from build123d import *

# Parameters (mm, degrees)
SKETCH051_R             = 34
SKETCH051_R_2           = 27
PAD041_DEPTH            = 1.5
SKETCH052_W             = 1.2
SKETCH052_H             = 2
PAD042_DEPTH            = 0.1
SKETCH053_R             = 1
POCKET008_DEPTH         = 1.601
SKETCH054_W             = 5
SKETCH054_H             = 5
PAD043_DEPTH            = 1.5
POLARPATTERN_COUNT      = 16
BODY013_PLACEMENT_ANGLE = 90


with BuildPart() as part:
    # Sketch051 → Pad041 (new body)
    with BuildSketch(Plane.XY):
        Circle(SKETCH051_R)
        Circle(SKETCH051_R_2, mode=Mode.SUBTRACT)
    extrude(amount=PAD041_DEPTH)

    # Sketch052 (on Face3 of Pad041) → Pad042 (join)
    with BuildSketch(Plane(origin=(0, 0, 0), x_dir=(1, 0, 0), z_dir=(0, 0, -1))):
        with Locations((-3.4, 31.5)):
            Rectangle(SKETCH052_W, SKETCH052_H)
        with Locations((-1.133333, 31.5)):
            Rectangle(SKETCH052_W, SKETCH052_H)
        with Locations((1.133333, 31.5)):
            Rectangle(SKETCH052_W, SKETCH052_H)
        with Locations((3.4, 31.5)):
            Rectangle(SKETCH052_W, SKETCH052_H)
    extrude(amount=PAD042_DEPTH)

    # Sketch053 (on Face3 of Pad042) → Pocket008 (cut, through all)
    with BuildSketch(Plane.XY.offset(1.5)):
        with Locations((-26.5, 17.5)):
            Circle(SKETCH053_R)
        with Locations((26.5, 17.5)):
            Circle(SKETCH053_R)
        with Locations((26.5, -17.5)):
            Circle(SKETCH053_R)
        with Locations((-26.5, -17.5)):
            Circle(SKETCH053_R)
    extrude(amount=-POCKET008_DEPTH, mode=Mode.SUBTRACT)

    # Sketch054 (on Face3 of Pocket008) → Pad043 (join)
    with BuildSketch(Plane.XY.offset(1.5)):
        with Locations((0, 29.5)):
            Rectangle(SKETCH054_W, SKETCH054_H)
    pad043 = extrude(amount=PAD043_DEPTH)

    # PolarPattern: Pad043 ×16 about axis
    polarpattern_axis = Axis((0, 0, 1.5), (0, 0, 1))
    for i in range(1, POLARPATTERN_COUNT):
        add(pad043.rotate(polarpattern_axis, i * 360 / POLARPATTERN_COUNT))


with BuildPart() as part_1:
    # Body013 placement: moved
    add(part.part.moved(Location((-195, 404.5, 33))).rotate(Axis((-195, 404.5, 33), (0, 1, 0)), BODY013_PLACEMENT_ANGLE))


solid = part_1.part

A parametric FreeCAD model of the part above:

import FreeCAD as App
import Part
import Sketcher

V = App.Vector


def add_polygon(sketch, points):
    """Adds a closed chain of lines whose ends are joined by coincident constraints."""
    first, n = sketch.GeometryCount, len(points)
    for a, b in zip(points, points[1:] + points[:1]):
        sketch.addGeometry(Part.LineSegment(App.Vector(*a, 0), App.Vector(*b, 0)), False)
    for i in range(n):
        sketch.addConstraint(Sketcher.Constraint("Coincident", first + i, 2, first + (i + 1) % n, 1))

doc = App.newDocument("Part")
body = doc.addObject("PartDesign::Body", "Body")

sketch1 = body.newObject("Sketcher::SketchObject", "Sketch")
sketch1.AttachmentSupport = (doc.getObject("XY_Plane"), [""])
sketch1.MapMode = "FlatFace"
sketch1.addGeometry([
    Part.Circle(V(0, 0, 0), V(0, 0, 1), 34),
    Part.Circle(V(0, 0, 0), V(0, 0, 1), 27),
], False)
sketch1.addConstraint([
    Sketcher.Constraint("Coincident", 0, 3, -1, 1),
    Sketcher.Constraint("Coincident", 1, 3, -1, 1),
    Sketcher.Constraint("Diameter", 0, 68.0),
    Sketcher.Constraint("Diameter", 1, 54.0),
])
pad1 = body.newObject("PartDesign::Pad", "Pad")
pad1.Profile = sketch1
pad1.Length = 1.5

sketch2 = body.newObject("Sketcher::SketchObject", "Sketch001")
sketch2.AttachmentSupport = (doc.getObject("XY_Plane"), [""])
sketch2.MapMode = "FlatFace"
add_polygon(sketch2, [(-4, -32.5), (-4, -30.5), (-2.8, -30.5), (-2.8, -32.5)])
add_polygon(sketch2, [(-1.7, -32.5), (-1.7, -30.5), (-0.5, -30.5), (-0.5, -32.5)])
add_polygon(sketch2, [(0.5, -32.5), (0.5, -30.5), (1.7, -30.5), (1.7, -32.5)])
add_polygon(sketch2, [(2.8, -32.5), (2.8, -30.5), (4, -30.5), (4, -32.5)])
sketch2.addConstraint([
    Sketcher.Constraint("Vertical", 0),
    Sketcher.Constraint("Horizontal", 1),
    Sketcher.Constraint("Vertical", 2),
    Sketcher.Constraint("Horizontal", 3),
    Sketcher.Constraint("Vertical", 4),
    Sketcher.Constraint("Horizontal", 5),
    Sketcher.Constraint("Vertical", 6),
    Sketcher.Constraint("Horizontal", 7),
    Sketcher.Constraint("Vertical", 8),
    Sketcher.Constraint("Horizontal", 9),
    Sketcher.Constraint("Vertical", 10),
    Sketcher.Constraint("Horizontal", 11),
    Sketcher.Constraint("Vertical", 12),
    Sketcher.Constraint("Horizontal", 13),
    Sketcher.Constraint("Vertical", 14),
    Sketcher.Constraint("Horizontal", 15),
    Sketcher.Constraint("Symmetric", 5, 2, 8, 2, -2),
    Sketcher.Constraint("Symmetric", 7, 2, 10, 2, -2),
    Sketcher.Constraint("Symmetric", 1, 2, 12, 2, -2),
    Sketcher.Constraint("Symmetric", 3, 2, 14, 2, -2),
    Sketcher.Constraint("Horizontal", 1, 2, 4, 2),
    Sketcher.Constraint("Horizontal", 3, 2, 6, 2),
    Sketcher.Constraint("Equal", 3, 5),
    Sketcher.Constraint("DistanceY", 0, 1, 0, 2, 2.0),
    Sketcher.Constraint("DistanceX", 1, 1, 1, 2, 1.2),
    Sketcher.Constraint("DistanceX", 0, 2, -1, 1, 4.0),
    Sketcher.Constraint("DistanceY", 0, 2, -1, 1, 30.5),
    Sketcher.Constraint("DistanceX", 4, 2, -1, 1, 1.733333),
])
pad2 = body.newObject("PartDesign::Pad", "Pad001")
pad2.Profile = sketch2
pad2.Length = 0.1
pad2.Reversed = True

sketch3 = body.newObject("Sketcher::SketchObject", "Sketch002")
sketch3.AttachmentSupport = (doc.getObject("XY_Plane"), [""])
sketch3.MapMode = "FlatFace"
sketch3.AttachmentOffset = App.Placement(V(0, 0, 1.5), App.Rotation())
sketch3.addGeometry([
    Part.Circle(V(-26.5, 17.5, 0), V(0, 0, 1), 1),
    Part.Circle(V(26.5, 17.5, 0), V(0, 0, 1), 1),
    Part.Circle(V(26.5, -17.5, 0), V(0, 0, 1), 1),
    Part.Circle(V(-26.5, -17.5, 0), V(0, 0, 1), 1),
], False)
sketch3.addConstraint([
    Sketcher.Constraint("Equal", 0, 1),
    Sketcher.Constraint("Equal", 1, 2),
    Sketcher.Constraint("Equal", 2, 3),
    Sketcher.Constraint("Symmetric", 0, 3, 2, 3, -1, 1),
    Sketcher.Constraint("Symmetric", 1, 3, 3, 3, -1, 1),
    Sketcher.Constraint("Symmetric", 0, 3, 1, 3, -2),
    Sketcher.Constraint("Diameter", 0, 2.0),
    Sketcher.Constraint("DistanceX", 0, 3, 1, 3, 53.0),
    Sketcher.Constraint("DistanceY", 2, 3, 1, 3, 35.0),
])
pocket1 = body.newObject("PartDesign::Pocket", "Pocket")
pocket1.Profile = sketch3
pocket1.Type = "ThroughAll"

sketch4 = body.newObject("Sketcher::SketchObject", "Sketch003")
sketch4.AttachmentSupport = (doc.getObject("XY_Plane"), [""])
sketch4.MapMode = "FlatFace"
sketch4.AttachmentOffset = App.Placement(V(0, 0, 1.5), App.Rotation())
add_polygon(sketch4, [(-2, 32), (-2, 27), (2, 27), (2, 32)])
sketch4.addConstraint([
    Sketcher.Constraint("Vertical", 0),
    Sketcher.Constraint("Horizontal", 1),
    Sketcher.Constraint("Vertical", 2),
    Sketcher.Constraint("Horizontal", 3),
    Sketcher.Constraint("Equal", 3, 0),
    Sketcher.Constraint("DistanceX", 1, 1, 1, 2, 5.0),
    Sketcher.Constraint("DistanceY", -1, 1, 0, 2, 27.0),
    Sketcher.Constraint("DistanceX", 0, 2, -1, 1, 2.5),
])
pad3 = body.newObject("PartDesign::Pad", "Pad002")
pad3.Profile = sketch4
pad3.Length = 1.5
doc.recompute()

polarpattern = body.newObject("PartDesign::PolarPattern", "PolarPattern")
polarpattern.Originals = [pad3]
polarpattern.Axis = (doc.getObject("Z_Axis"), [""])
polarpattern.Angle = 360
polarpattern.Occurrences = 16
body.Tip = polarpattern
body2 = doc.addObject("PartDesign::Body", "Body001")
doc.recompute()

body.Placement = App.Placement(V(-195, 404.5, 33), App.Rotation(V(0, 1, 0), 90))
boolean = body2.newObject("PartDesign::Boolean", "Boolean")
boolean.Type = "Fuse"
boolean.addObjects([body])

doc.recompute()
